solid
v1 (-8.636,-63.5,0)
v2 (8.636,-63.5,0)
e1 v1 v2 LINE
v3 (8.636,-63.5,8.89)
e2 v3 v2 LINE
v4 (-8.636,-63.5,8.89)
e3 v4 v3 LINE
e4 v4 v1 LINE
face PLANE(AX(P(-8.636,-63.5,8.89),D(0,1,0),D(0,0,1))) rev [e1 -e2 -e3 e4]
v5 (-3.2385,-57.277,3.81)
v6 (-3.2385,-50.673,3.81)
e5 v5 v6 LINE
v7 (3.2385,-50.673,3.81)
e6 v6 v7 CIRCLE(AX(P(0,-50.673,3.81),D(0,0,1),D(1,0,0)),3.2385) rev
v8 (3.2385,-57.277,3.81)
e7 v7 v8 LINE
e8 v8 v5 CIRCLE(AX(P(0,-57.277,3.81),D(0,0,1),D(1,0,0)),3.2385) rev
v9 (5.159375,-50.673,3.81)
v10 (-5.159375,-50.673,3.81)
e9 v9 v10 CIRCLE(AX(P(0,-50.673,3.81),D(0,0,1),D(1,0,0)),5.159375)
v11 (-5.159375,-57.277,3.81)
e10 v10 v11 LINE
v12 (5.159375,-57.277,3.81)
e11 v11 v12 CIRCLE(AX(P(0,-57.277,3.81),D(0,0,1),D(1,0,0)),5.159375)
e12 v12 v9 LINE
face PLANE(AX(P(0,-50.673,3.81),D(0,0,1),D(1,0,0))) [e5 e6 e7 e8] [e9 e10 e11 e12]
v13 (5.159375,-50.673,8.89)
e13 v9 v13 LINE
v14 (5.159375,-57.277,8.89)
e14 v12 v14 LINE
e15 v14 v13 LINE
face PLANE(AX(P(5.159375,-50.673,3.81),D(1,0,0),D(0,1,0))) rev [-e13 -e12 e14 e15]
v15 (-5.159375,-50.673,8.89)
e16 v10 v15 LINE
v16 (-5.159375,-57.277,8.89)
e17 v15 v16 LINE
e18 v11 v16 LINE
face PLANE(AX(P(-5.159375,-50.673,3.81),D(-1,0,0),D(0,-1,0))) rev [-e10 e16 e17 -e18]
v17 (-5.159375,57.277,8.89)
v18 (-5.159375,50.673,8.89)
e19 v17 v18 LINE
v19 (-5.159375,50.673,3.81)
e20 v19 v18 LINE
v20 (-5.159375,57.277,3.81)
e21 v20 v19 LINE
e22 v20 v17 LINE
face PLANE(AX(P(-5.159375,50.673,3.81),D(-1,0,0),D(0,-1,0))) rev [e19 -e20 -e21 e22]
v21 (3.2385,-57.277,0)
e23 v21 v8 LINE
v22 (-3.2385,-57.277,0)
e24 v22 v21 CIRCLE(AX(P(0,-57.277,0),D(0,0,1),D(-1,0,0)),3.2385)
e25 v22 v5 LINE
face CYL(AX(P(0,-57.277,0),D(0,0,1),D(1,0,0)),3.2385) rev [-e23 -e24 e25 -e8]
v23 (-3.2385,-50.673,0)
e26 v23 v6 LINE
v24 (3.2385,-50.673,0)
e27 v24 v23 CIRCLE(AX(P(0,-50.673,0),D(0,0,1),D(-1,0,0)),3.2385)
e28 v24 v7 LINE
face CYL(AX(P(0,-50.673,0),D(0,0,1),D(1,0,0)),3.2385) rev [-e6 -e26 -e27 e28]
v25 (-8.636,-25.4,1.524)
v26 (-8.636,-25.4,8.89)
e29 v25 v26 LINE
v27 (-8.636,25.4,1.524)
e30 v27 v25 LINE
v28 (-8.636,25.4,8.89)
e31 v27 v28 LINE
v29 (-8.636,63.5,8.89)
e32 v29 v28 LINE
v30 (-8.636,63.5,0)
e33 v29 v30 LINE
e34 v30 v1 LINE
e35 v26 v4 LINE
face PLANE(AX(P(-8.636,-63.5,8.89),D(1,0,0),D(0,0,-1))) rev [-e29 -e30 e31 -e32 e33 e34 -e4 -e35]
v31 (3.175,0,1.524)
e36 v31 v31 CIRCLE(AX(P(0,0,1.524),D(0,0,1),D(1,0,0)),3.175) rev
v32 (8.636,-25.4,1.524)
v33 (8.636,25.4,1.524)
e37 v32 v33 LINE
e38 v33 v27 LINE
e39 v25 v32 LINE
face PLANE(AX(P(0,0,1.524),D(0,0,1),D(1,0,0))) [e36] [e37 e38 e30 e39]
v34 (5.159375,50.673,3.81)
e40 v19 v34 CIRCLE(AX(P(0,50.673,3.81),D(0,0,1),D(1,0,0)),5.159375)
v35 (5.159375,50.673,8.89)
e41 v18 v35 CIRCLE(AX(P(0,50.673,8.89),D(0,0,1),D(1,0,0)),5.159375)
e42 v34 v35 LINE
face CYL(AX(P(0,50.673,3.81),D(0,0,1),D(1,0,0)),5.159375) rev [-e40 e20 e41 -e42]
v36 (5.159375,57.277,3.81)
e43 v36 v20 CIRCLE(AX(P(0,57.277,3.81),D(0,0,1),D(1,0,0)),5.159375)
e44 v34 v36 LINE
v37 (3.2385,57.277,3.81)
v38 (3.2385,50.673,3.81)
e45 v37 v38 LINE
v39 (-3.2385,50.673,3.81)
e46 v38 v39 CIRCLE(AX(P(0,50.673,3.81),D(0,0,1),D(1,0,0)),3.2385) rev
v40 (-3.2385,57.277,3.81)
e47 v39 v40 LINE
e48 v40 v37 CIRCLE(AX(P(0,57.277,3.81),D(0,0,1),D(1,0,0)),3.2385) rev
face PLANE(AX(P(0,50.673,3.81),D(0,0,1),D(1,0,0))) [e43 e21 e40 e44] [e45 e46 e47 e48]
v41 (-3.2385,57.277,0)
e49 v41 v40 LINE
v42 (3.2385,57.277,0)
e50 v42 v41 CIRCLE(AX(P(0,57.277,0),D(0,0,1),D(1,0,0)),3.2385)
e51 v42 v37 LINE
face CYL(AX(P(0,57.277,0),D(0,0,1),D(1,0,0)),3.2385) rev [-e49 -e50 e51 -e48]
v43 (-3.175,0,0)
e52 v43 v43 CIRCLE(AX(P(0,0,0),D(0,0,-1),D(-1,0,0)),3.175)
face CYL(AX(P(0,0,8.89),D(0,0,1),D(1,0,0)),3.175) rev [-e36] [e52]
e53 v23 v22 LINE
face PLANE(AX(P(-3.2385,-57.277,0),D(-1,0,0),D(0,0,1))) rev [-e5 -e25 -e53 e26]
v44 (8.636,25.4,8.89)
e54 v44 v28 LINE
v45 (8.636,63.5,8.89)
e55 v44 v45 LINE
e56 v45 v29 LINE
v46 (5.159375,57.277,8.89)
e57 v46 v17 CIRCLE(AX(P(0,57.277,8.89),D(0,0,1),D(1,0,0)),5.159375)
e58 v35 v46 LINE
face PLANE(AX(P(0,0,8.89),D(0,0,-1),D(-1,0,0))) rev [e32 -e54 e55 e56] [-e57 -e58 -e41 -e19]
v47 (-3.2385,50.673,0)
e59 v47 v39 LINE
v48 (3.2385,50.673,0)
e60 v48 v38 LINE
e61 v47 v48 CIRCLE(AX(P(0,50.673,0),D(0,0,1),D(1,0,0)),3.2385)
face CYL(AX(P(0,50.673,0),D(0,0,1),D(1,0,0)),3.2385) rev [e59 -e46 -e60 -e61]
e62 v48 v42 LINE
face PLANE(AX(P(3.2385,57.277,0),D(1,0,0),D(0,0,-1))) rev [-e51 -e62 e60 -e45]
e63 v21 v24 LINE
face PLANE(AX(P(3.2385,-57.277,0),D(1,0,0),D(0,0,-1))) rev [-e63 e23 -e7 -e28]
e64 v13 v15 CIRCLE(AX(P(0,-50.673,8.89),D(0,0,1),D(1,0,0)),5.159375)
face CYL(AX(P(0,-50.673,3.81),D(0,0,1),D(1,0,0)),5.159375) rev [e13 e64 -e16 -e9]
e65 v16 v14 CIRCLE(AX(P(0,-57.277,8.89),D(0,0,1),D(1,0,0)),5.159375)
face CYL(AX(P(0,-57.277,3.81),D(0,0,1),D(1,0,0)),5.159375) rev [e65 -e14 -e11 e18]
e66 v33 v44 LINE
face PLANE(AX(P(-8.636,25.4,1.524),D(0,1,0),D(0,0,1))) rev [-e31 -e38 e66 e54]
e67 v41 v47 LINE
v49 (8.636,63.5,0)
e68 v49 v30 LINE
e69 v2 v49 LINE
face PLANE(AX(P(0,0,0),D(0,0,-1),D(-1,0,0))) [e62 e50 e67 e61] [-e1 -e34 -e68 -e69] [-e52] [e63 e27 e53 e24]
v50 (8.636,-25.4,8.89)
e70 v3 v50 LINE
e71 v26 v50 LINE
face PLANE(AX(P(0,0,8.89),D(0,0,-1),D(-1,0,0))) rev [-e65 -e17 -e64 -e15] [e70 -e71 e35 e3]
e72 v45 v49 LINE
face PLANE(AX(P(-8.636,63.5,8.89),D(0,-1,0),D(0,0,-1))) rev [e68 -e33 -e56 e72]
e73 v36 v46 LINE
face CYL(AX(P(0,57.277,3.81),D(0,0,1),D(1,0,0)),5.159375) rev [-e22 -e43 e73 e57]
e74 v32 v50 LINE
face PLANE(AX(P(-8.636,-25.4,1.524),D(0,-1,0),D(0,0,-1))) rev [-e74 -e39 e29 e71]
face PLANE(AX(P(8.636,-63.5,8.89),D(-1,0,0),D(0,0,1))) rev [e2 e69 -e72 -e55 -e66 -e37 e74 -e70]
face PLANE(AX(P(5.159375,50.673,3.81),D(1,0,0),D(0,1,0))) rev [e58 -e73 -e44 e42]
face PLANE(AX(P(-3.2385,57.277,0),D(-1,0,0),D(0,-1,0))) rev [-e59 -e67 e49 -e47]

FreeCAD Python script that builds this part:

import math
import FreeCAD as App
import Part
import Sketcher
Q = App.Units.Quantity

doc = App.newDocument("Part")
body = doc.addObject("PartDesign::Body", "Body")

sketch1 = body.newObject("Sketcher::SketchObject", "Sketch")
sketch1.AttachmentSupport = (doc.getObject("XY_Plane"), [""])
sketch1.MapMode = "FlatFace"
sketch1.addGeometry(Part.LineSegment(App.Vector(-9, 64, 0), App.Vector(-9, -64, 0)), False)
sketch1.addGeometry(Part.LineSegment(App.Vector(-9, -64, 0), App.Vector(9, -64, 0)), False)
sketch1.addGeometry(Part.LineSegment(App.Vector(9, -64, 0), App.Vector(9, 64, 0)), False)
sketch1.addGeometry(Part.LineSegment(App.Vector(9, 64, 0), App.Vector(-9, 64, 0)), False)
sketch1.addConstraint(Sketcher.Constraint("Coincident", 0, 2, 1, 1))
sketch1.addConstraint(Sketcher.Constraint("Coincident", 1, 2, 2, 1))
sketch1.addConstraint(Sketcher.Constraint("Coincident", 2, 2, 3, 1))
sketch1.addConstraint(Sketcher.Constraint("Coincident", 3, 2, 0, 1))
sketch1.addConstraint(Sketcher.Constraint("Vertical", 0))
sketch1.addConstraint(Sketcher.Constraint("Horizontal", 1))
sketch1.addConstraint(Sketcher.Constraint("Vertical", 2))
sketch1.addConstraint(Sketcher.Constraint("Horizontal", 3))
sketch1.addConstraint(Sketcher.Constraint("Symmetric", 0, 2, 2, 2, -1, 1))
sketch1.addConstraint(Sketcher.Constraint("DistanceY", 0, 2, 0, 1, Q("5 in")))
sketch1.addConstraint(Sketcher.Constraint("DistanceX", 1, 1, 1, 2, Q("0.68 in")))
pad1 = body.newObject("PartDesign::Pad", "Pad")
pad1.Profile = sketch1
pad1.Length = Q("0.35 in")

sketch2 = body.newObject("Sketcher::SketchObject", "Sketch001")
sketch2.AttachmentSupport = (doc.getObject("XY_Plane"), [""])
sketch2.MapMode = "FlatFace"
sketch2.AttachmentOffset = App.Placement(App.Vector(0, 0, 0.35 * 25.4), App.Rotation())
sketch2.addGeometry(Part.Circle(App.Vector(0, 0, 0), App.Vector(0, 0, 1), 3.2), False)
sketch2.addConstraint(Sketcher.Constraint("Coincident", 0, 3, -1, 1))
sketch2.addConstraint(Sketcher.Constraint("Diameter", 0, Q("0.25 in")))
doc.recompute()
hole = body.newObject("PartDesign::Hole", "Hole")
hole.Profile = sketch2
hole.ThreadType = "None"
hole.Diameter = Q("0.25 in")
hole.DepthType = "Dimension"
hole.Depth = Q("0.35 in")
hole.DrillPoint = "Flat"

sketch3 = body.newObject("Sketcher::SketchObject", "Sketch002")
sketch3.AttachmentSupport = (doc.getObject("XY_Plane"), [""])
sketch3.MapMode = "FlatFace"
sketch3.AttachmentOffset = App.Placement(App.Vector(0, 0, 0.35 * 25.4), App.Rotation())
sketch3.addGeometry(Part.LineSegment(App.Vector(-9, 25, 0), App.Vector(-9, -25, 0)), False)
sketch3.addGeometry(Part.LineSegment(App.Vector(-9, -25, 0), App.Vector(9, -25, 0)), False)
sketch3.addGeometry(Part.LineSegment(App.Vector(9, -25, 0), App.Vector(9, 25, 0)), False)
sketch3.addGeometry(Part.LineSegment(App.Vector(9, 25, 0), App.Vector(-9, 25, 0)), False)
sketch3.addConstraint(Sketcher.Constraint("Coincident", 0, 2, 1, 1))
sketch3.addConstraint(Sketcher.Constraint("Coincident", 1, 2, 2, 1))
sketch3.addConstraint(Sketcher.Constraint("Coincident", 2, 2, 3, 1))
sketch3.addConstraint(Sketcher.Constraint("Coincident", 3, 2, 0, 1))
sketch3.addConstraint(Sketcher.Constraint("Vertical", 0))
sketch3.addConstraint(Sketcher.Constraint("Horizontal", 1))
sketch3.addConstraint(Sketcher.Constraint("Vertical", 2))
sketch3.addConstraint(Sketcher.Constraint("Horizontal", 3))
sketch3.addConstraint(Sketcher.Constraint("Symmetric", 0, 2, 2, 2, -1, 1))
sketch3.addConstraint(Sketcher.Constraint("DistanceY", 0, 2, 0, 1, Q("2 in")))
sketch3.addConstraint(Sketcher.Constraint("DistanceX", 1, 1, 1, 2, Q("0.68 in")))
pocket1 = body.newObject("PartDesign::Pocket", "Pocket")
pocket1.Profile = sketch3
pocket1.Length = Q("0.29 in")

sketch4 = body.newObject("Sketcher::SketchObject", "Sketch003")
sketch4.AttachmentSupport = (doc.getObject("XY_Plane"), [""])
sketch4.MapMode = "FlatFace"
sketch4.AttachmentOffset = App.Placement(App.Vector(0, 0, 0.35 * 25.4), App.Rotation())
sketch4.addGeometry(Part.LineSegment(App.Vector(3.2, 50.7, 0), App.Vector(3.2, 57.3, 0)), False)
sketch4.addGeometry(Part.ArcOfCircle(Part.Circle(App.Vector(0, 57.3, 0), App.Vector(0, 0, 1), 3.2), math.radians(0), math.radians(180)), False)
sketch4.addGeometry(Part.LineSegment(App.Vector(-3.2, 57.3, 0), App.Vector(-3.2, 50.7, 0)), False)
sketch4.addGeometry(Part.ArcOfCircle(Part.Circle(App.Vector(0, 50.7, 0), App.Vector(0, 0, 1), 3.2), math.radians(180), math.radians(360)), False)
sketch4.addGeometry(Part.LineSegment(App.Vector(3.2, -57.3, 0), App.Vector(3.2, -50.7, 0)), False)
sketch4.addGeometry(Part.ArcOfCircle(Part.Circle(App.Vector(0, -50.7, 0), App.Vector(0, 0, 1), 3.2), math.radians(0), math.radians(180)), False)
sketch4.addGeometry(Part.LineSegment(App.Vector(-3.2, -50.7, 0), App.Vector(-3.2, -57.3, 0)), False)
sketch4.addGeometry(Part.ArcOfCircle(Part.Circle(App.Vector(0, -57.3, 0), App.Vector(0, 0, 1), 3.2), math.radians(180), math.radians(360)), False)
sketch4.addConstraint(Sketcher.Constraint("Tangent", 0, 2, 1, 1))
sketch4.addConstraint(Sketcher.Constraint("Tangent", 1, 2, 2, 1))
sketch4.addConstraint(Sketcher.Constraint("Tangent", 2, 2, 3, 1))
sketch4.addConstraint(Sketcher.Constraint("Tangent", 3, 2, 0, 1))
sketch4.addConstraint(Sketcher.Constraint("Tangent", 4, 2, 5, 1))
sketch4.addConstraint(Sketcher.Constraint("Tangent", 5, 2, 6, 1))
sketch4.addConstraint(Sketcher.Constraint("Tangent", 6, 2, 7, 1))
sketch4.addConstraint(Sketcher.Constraint("Tangent", 7, 2, 4, 1))
sketch4.addConstraint(Sketcher.Constraint("Vertical", 0))
sketch4.addConstraint(Sketcher.Constraint("Vertical", 2))
sketch4.addConstraint(Sketcher.Constraint("Vertical", 4))
sketch4.addConstraint(Sketcher.Constraint("Vertical", 6))
sketch4.addConstraint(Sketcher.Constraint("Equal", 3, 5))
sketch4.addConstraint(Sketcher.Constraint("Symmetric", 3, 3, 5, 3, -1, 1))
sketch4.addConstraint(Sketcher.Constraint("Symmetric", 1, 3, 7, 3, -1))
sketch4.addConstraint(Sketcher.Constraint("DistanceY", 0, 1, 0, 2, Q("0.26 in")))
sketch4.addConstraint(Sketcher.Constraint("Radius", 1, Q("0.1275 in")))
sketch4.addConstraint(Sketcher.Constraint("DistanceY", 5, 3, 3, 3, Q("3.99 in")))
pocket2 = body.newObject("PartDesign::Pocket", "Pocket001")
pocket2.Profile = sketch4
pocket2.Type = "ThroughAll"

sketch5 = body.newObject("Sketcher::SketchObject", "Sketch004")
sketch5.AttachmentSupport = (doc.getObject("XY_Plane"), [""])
sketch5.MapMode = "FlatFace"
sketch5.AttachmentOffset = App.Placement(App.Vector(0, 0, 0.35 * 25.4), App.Rotation())
sketch5.addGeometry(Part.LineSegment(App.Vector(-5, 57, 0), App.Vector(-5, 51, 0)), False)
sketch5.addGeometry(Part.ArcOfCircle(Part.Circle(App.Vector(0, 51, 0), App.Vector(0, 0, 1), 5), math.radians(180), math.radians(360)), False)
sketch5.addGeometry(Part.LineSegment(App.Vector(5, 51, 0), App.Vector(5, 57, 0)), False)
sketch5.addGeometry(Part.ArcOfCircle(Part.Circle(App.Vector(0, 57, 0), App.Vector(0, 0, 1), 5), math.radians(0), math.radians(180)), False)
sketch5.addGeometry(Part.LineSegment(App.Vector(5, -57, 0), App.Vector(5, -51, 0)), False)
sketch5.addGeometry(Part.ArcOfCircle(Part.Circle(App.Vector(0, -51, 0), App.Vector(0, 0, 1), 5), math.radians(0), math.radians(180)), False)
sketch5.addGeometry(Part.LineSegment(App.Vector(-5, -51, 0), App.Vector(-5, -57, 0)), False)
sketch5.addGeometry(Part.ArcOfCircle(Part.Circle(App.Vector(0, -57, 0), App.Vector(0, 0, 1), 5), math.radians(180), math.radians(360)), False)
sketch5.addConstraint(Sketcher.Constraint("Tangent", 0, 2, 1, 1))
sketch5.addConstraint(Sketcher.Constraint("Tangent", 1, 2, 2, 1))
sketch5.addConstraint(Sketcher.Constraint("Tangent", 2, 2, 3, 1))
sketch5.addConstraint(Sketcher.Constraint("Tangent", 3, 2, 0, 1))
sketch5.addConstraint(Sketcher.Constraint("Tangent", 4, 2, 5, 1))
sketch5.addConstraint(Sketcher.Constraint("Tangent", 5, 2, 6, 1))
sketch5.addConstraint(Sketcher.Constraint("Tangent", 6, 2, 7, 1))
sketch5.addConstraint(Sketcher.Constraint("Tangent", 7, 2, 4, 1))
sketch5.addConstraint(Sketcher.Constraint("Vertical", 0))
sketch5.addConstraint(Sketcher.Constraint("Vertical", 2))
sketch5.addConstraint(Sketcher.Constraint("Vertical", 4))
sketch5.addConstraint(Sketcher.Constraint("Vertical", 6))
sketch5.addConstraint(Sketcher.Constraint("Equal", 3, 5))
sketch5.addConstraint(Sketcher.Constraint("Symmetric", 1, 3, 5, 3, -1, 1))
sketch5.addConstraint(Sketcher.Constraint("Symmetric", 3, 3, 7, 3, -1))
sketch5.addConstraint(Sketcher.Constraint("Radius", 1, Q("0.203125 in")))
sketch5.addConstraint(Sketcher.Constraint("DistanceY", 0, 2, 0, 1, Q("0.26 in")))
sketch5.addConstraint(Sketcher.Constraint("DistanceY", 5, 3, 1, 3, Q("3.99 in")))
pocket3 = body.newObject("PartDesign::Pocket", "Pocket002")
pocket3.Profile = sketch5
pocket3.Length = Q("0.2 in")

doc.recompute()
